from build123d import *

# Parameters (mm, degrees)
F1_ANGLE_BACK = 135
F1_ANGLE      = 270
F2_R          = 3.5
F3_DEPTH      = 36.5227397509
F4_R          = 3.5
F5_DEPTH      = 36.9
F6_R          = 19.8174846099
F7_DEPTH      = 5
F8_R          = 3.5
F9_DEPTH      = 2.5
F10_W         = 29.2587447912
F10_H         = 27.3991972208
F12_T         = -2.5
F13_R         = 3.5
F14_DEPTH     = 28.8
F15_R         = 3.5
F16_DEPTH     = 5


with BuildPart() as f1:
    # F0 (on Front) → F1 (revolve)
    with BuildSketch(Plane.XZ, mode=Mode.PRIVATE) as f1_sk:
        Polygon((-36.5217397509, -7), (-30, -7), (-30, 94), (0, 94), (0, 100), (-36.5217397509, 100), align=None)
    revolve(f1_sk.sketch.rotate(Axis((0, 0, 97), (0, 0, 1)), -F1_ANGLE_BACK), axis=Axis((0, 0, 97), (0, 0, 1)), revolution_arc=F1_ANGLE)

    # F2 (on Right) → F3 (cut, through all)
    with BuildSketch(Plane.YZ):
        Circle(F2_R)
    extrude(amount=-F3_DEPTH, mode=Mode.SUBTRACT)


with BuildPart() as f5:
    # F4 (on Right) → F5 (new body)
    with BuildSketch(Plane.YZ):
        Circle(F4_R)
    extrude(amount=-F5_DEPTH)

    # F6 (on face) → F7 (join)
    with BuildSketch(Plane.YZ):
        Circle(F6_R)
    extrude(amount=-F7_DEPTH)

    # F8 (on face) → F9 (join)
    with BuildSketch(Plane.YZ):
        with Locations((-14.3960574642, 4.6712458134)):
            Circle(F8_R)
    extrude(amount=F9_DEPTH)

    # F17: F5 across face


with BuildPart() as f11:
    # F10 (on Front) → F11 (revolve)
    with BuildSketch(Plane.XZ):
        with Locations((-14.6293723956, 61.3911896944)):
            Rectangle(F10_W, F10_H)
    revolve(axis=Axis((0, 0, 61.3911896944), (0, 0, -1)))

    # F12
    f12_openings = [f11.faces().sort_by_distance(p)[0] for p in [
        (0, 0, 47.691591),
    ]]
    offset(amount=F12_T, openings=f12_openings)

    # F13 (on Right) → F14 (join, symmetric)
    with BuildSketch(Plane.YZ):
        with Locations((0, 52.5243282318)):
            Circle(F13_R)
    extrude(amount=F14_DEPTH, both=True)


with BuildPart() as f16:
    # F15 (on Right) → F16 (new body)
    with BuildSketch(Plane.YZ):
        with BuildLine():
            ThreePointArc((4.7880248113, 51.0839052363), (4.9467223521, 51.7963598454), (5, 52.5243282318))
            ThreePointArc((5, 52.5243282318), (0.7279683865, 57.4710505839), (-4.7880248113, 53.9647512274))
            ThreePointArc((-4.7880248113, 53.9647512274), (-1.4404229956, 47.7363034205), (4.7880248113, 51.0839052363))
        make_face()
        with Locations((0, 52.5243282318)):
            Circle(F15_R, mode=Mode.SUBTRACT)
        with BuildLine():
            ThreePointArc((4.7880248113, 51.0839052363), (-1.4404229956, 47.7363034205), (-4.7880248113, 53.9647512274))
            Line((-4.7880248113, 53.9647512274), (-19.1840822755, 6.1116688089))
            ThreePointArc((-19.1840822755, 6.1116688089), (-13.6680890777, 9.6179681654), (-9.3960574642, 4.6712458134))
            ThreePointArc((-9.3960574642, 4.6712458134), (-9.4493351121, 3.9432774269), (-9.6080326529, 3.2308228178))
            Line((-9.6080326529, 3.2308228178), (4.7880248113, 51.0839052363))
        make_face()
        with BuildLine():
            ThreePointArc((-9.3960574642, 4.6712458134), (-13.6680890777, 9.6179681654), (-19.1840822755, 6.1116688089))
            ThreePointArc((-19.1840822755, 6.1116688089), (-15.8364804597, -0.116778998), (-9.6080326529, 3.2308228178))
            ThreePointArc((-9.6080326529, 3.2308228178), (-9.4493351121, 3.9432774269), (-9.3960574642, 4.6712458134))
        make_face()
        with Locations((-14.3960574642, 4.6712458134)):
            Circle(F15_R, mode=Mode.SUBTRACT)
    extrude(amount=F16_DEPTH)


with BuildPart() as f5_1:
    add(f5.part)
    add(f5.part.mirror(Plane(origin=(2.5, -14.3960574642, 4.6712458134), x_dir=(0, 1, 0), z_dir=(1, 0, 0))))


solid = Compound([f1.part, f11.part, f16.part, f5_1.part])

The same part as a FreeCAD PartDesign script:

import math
import FreeCAD as App
import Part
import Sketcher
Q = App.Units.Quantity


def faces_at(feature, points):
    """Names of the faces that lie closest to the given points."""
    faces = feature.Shape.Faces
    near = lambda p: min(range(len(faces)), key=lambda i: faces[i].distToShape(Part.Vertex(*p))[0])
    return sorted({f"Face{near(p) + 1}" for p in points})


def add_polygon(sketch, points):
    """Adds a closed chain of lines whose ends are joined by coincident constraints."""
    first, n = sketch.GeometryCount, len(points)
    for a, b in zip(points, points[1:] + points[:1]):
        sketch.addGeometry(Part.LineSegment(App.Vector(*a, 0), App.Vector(*b, 0)), False)
    for i in range(n):
        sketch.addConstraint(Sketcher.Constraint("Coincident", first + i, 2, first + (i + 1) % n, 1))

doc = App.newDocument("Part")
params = doc.addObject("Spreadsheet::Sheet", "Params")
for row, (alias, value) in enumerate([
    ("sketch1_width", "30 mm"),
    ("sketch1_height", "101 mm"),
    ("sketch1_height2", "6 mm"),
    ("revolution_angle", "270 deg"),
    ("sketch2_diameter", "7 mm"),
    ("sketch3_diameter", "7 mm"),
    ("pad1_length", "36.9 mm"),
    ("pad2_length", "5 mm"),
    ("sketch5_diameter", "7 mm"),
    ("pad3_length", "2.5 mm"),
    ("revolution2_angle", "360 deg"),
    ("thickness_wall", "2.5 mm"),
    ("sketch7_diameter", "7 mm"),
    ("pad4_length", "57.6 mm"),
    ("sketch8_diameter", "7 mm"),
    ("sketch8_radius", "5 mm"),
    ("pad5_length", "5 mm"),
], start=1):
    params.set(f"A{row}", alias)
    params.set(f"B{row}", "=" + value)
    params.setAlias(f"B{row}", alias)

body = doc.addObject("PartDesign::Body", "Body")

sketch1 = body.newObject("Sketcher::SketchObject", "Sketch")
sketch1.Placement = App.Placement(App.Vector(0, 0, 0), App.Rotation(App.Vector(-0.707106781, -0.707106781, 0), App.Vector(0, 0, 0.999999999), App.Vector(-0.707106781, 0.707106781, 0), "ZXY"))
add_polygon(sketch1, [(-37, -7), (-30, -7), (-30, 94), (0, 94), (0, 100), (-37, 100)])
sketch1.addConstraint(Sketcher.Constraint("Horizontal", 0))
sketch1.addConstraint(Sketcher.Constraint("Vertical", 1))
sketch1.addConstraint(Sketcher.Constraint("Horizontal", 2))
sketch1.addConstraint(Sketcher.Constraint("Vertical", 3))
sketch1.addConstraint(Sketcher.Constraint("Horizontal", 4))
sketch1.addConstraint(Sketcher.Constraint("Vertical", 5))
sketch1.addConstraint(Sketcher.Constraint("PointOnObject", 2, 2, -2))
sketch1.addConstraint(Sketcher.Constraint("DistanceX", 2, 1, 2, 2, Q("30 mm")))
sketch1.addConstraint(Sketcher.Constraint("DistanceY", 1, 1, 1, 2, Q("101 mm")))
sketch1.addConstraint(Sketcher.Constraint("DistanceY", 3, 1, 3, 2, Q("6 mm")))
sketch1.addConstraint(Sketcher.Constraint("DistanceY", 0, 2, -1, 1, Q("7 mm")))
sketch1.addConstraint(Sketcher.Constraint("DistanceX", 0, 1, 0, 2, Q("6.52174 mm")))
sketch1.setExpression("Constraints[13]", "Params.sketch1_width")
sketch1.setExpression("Constraints[14]", "Params.sketch1_height")
sketch1.setExpression("Constraints[15]", "Params.sketch1_height2")
revolution = body.newObject("PartDesign::Revolution", "Revolution")
revolution.Profile = sketch1
revolution.ReferenceAxis = (sketch1, ["V_Axis"])
revolution.setExpression("Angle", "Params.revolution_angle")

sketch2 = body.newObject("Sketcher::SketchObject", "Sketch001")
sketch2.AttachmentSupport = (doc.getObject("YZ_Plane"), [""])
sketch2.MapMode = "FlatFace"
sketch2.addGeometry(Part.Circle(App.Vector(0, 0, 0), App.Vector(0, 0, 1), 3.5), False)
sketch2.addConstraint(Sketcher.Constraint("Coincident", 0, 3, -1, 1))
sketch2.addConstraint(Sketcher.Constraint("Diameter", 0, Q("7 mm")))
sketch2.setExpression("Constraints[1]", "Params.sketch2_diameter")
pocket1 = body.newObject("PartDesign::Pocket", "Pocket")
pocket1.Profile = sketch2
pocket1.Type = "ThroughAll"
body2 = doc.addObject("PartDesign::Body", "Body001")

sketch3 = body2.newObject("Sketcher::SketchObject", "Sketch002")
sketch3.AttachmentSupport = (doc.getObject("YZ_Plane001"), [""])
sketch3.MapMode = "FlatFace"
sketch3.addGeometry(Part.Circle(App.Vector(0, 0, 0), App.Vector(0, 0, 1), 3.5), False)
sketch3.addConstraint(Sketcher.Constraint("Coincident", 0, 3, -1, 1))
sketch3.addConstraint(Sketcher.Constraint("Diameter", 0, Q("7 mm")))
sketch3.setExpression("Constraints[1]", "Params.sketch3_diameter")
pad1 = body2.newObject("PartDesign::Pad", "Pad")
pad1.Profile = sketch3
pad1.setExpression("Length", "Params.pad1_length")
pad1.Reversed = True

sketch4 = body2.newObject("Sketcher::SketchObject", "Sketch003")
sketch4.AttachmentSupport = (doc.getObject("YZ_Plane001"), [""])
sketch4.MapMode = "FlatFace"
sketch4.addGeometry(Part.Circle(App.Vector(0, 0, 0), App.Vector(0, 0, 1), 20), False)
sketch4.addConstraint(Sketcher.Constraint("Coincident", 0, 3, -1, 1))
sketch4.addConstraint(Sketcher.Constraint("Diameter", 0, Q("39.634969 mm")))
pad2 = body2.newObject("PartDesign::Pad", "Pad001")
pad2.Profile = sketch4
pad2.setExpression("Length", "Params.pad2_length")
pad2.Reversed = True

sketch5 = body2.newObject("Sketcher::SketchObject", "Sketch004")
sketch5.AttachmentSupport = (doc.getObject("YZ_Plane001"), [""])
sketch5.MapMode = "FlatFace"
sketch5.addGeometry(Part.Circle(App.Vector(-14.4, 4.7, 0), App.Vector(0, 0, 1), 3.5), False)
sketch5.addConstraint(Sketcher.Constraint("Diameter", 0, Q("7 mm")))
sketch5.addConstraint(Sketcher.Constraint("DistanceX", 0, 3, -1, 1, Q("14.396057 mm")))
sketch5.addConstraint(Sketcher.Constraint("DistanceY", -1, 1, 0, 3, Q("4.671246 mm")))
sketch5.setExpression("Constraints[0]", "Params.sketch5_diameter")
pad3 = body2.newObject("PartDesign::Pad", "Pad002")
pad3.Profile = sketch5
pad3.setExpression("Length", "Params.pad3_length")
body3 = doc.addObject("PartDesign::Body", "Body002")

sketch6 = body3.newObject("Sketcher::SketchObject", "Sketch005")
sketch6.AttachmentSupport = (doc.getObject("XZ_Plane002"), [""])
sketch6.MapMode = "FlatFace"
add_polygon(sketch6, [(-29, 75), (-29, 48), (0, 48), (0, 75)])
sketch6.addConstraint(Sketcher.Constraint("Vertical", 0))
sketch6.addConstraint(Sketcher.Constraint("Horizontal", 1))
sketch6.addConstraint(Sketcher.Constraint("Vertical", 2))
sketch6.addConstraint(Sketcher.Constraint("Horizontal", 3))
sketch6.addConstraint(Sketcher.Constraint("PointOnObject", 1, 2, -2))
sketch6.addConstraint(Sketcher.Constraint("DistanceX", 1, 1, 1, 2, Q("29.258745 mm")))
sketch6.addConstraint(Sketcher.Constraint("DistanceY", 0, 2, 0, 1, Q("27.399197 mm")))
sketch6.addConstraint(Sketcher.Constraint("DistanceY", -1, 1, 0, 2, Q("47.691591 mm")))
revolution2 = body3.newObject("PartDesign::Revolution", "Revolution001")
revolution2.Profile = sketch6
revolution2.ReferenceAxis = (sketch6, ["V_Axis"])
revolution2.setExpression("Angle", "Params.revolution2_angle")
doc.recompute()

thickness = body3.newObject("PartDesign::Thickness", "Thickness")
thickness.Base = (revolution2, faces_at(revolution2, [(0, 0, 47.692)]))
thickness.setExpression("Value", "Params.thickness_wall")
thickness.Reversed = True
thickness.Join = "Arc"

sketch7 = body3.newObject("Sketcher::SketchObject", "Sketch006")
sketch7.AttachmentSupport = (doc.getObject("YZ_Plane002"), [""])
sketch7.MapMode = "FlatFace"
sketch7.addGeometry(Part.Circle(App.Vector(0, 52.5, 0), App.Vector(0, 0, 1), 3.5), False)
sketch7.addConstraint(Sketcher.Constraint("PointOnObject", 0, 3, -2))
sketch7.addConstraint(Sketcher.Constraint("Diameter", 0, Q("7 mm")))
sketch7.addConstraint(Sketcher.Constraint("DistanceY", -1, 1, 0, 3, Q("52.524328 mm")))
sketch7.setExpression("Constraints[1]", "Params.sketch7_diameter")
pad4 = body3.newObject("PartDesign::Pad", "Pad003")
pad4.Profile = sketch7
pad4.setExpression("Length", "Params.pad4_length")
pad4.Midplane = True
body4 = doc.addObject("PartDesign::Body", "Body003")

sketch8 = body4.newObject("Sketcher::SketchObject", "Sketch007")
sketch8.AttachmentSupport = (doc.getObject("YZ_Plane003"), [""])
sketch8.MapMode = "FlatFace"
sketch8.addGeometry(Part.ArcOfCircle(Part.Circle(App.Vector(0, 52.5, 0), App.Vector(0, 0, 1), 5), math.radians(-16.74), math.radians(0)), False)
sketch8.addGeometry(Part.ArcOfCircle(Part.Circle(App.Vector(0, 52.5, 0), App.Vector(0, 0, 1), 5), math.radians(0), math.radians(163)), False)
sketch8.addGeometry(Part.LineSegment(App.Vector(-4.8, 54, 0), App.Vector(-19.2, 6.1, 0)), False)
sketch8.addGeometry(Part.ArcOfCircle(Part.Circle(App.Vector(-14.4, 4.7, 0), App.Vector(0, 0, 1), 5), math.radians(163), math.radians(343)), False)
sketch8.addGeometry(Part.LineSegment(App.Vector(-9.6, 3.2, 0), App.Vector(4.8, 51.1, 0)), False)
sketch8.addGeometry(Part.Circle(App.Vector(-14.4, 4.7, 0), App.Vector(0, 0, 1), 3.5), False)
sketch8.addGeometry(Part.Circle(App.Vector(0, 52.5, 0), App.Vector(0, 0, 1), 3.5), False)
sketch8.addConstraint(Sketcher.Constraint("Tangent", 0, 2, 1, 1))
sketch8.addConstraint(Sketcher.Constraint("Tangent", 1, 2, 2, 1))
sketch8.addConstraint(Sketcher.Constraint("Tangent", 2, 2, 3, 1))
sketch8.addConstraint(Sketcher.Constraint("Tangent", 3, 2, 4, 1))
sketch8.addConstraint(Sketcher.Constraint("Tangent", 4, 2, 0, 1))
sketch8.addConstraint(Sketcher.Constraint("Coincident", 5, 3, 3, 3))
sketch8.addConstraint(Sketcher.Constraint("Coincident", 6, 3, 0, 3))
sketch8.addConstraint(Sketcher.Constraint("Equal", 0, 1))
sketch8.addConstraint(Sketcher.Constraint("Equal", 1, 3))
sketch8.addConstraint(Sketcher.Constraint("Equal", 5, 6))
sketch8.addConstraint(Sketcher.Constraint("PointOnObject", 0, 3, -2))
sketch8.addConstraint(Sketcher.Constraint("Horizontal", 6, 3, 0, 2))
sketch8.addConstraint(Sketcher.Constraint("Diameter", 5, Q("7 mm")))
sketch8.addConstraint(Sketcher.Constraint("Radius", 0, Q("5 mm")))
sketch8.addConstraint(Sketcher.Constraint("Distance", 2, Q("49.971632 mm")))
sketch8.addConstraint(Sketcher.Constraint("DistanceY", -1, 1, 0, 3, Q("52.524328 mm")))
sketch8.addConstraint(Sketcher.Constraint("DistanceY", -1, 1, 1, 2, Q("53.964751 mm")))
sketch8.setExpression("Constraints[12]", "Params.sketch8_diameter")
sketch8.setExpression("Constraints[13]", "Params.sketch8_radius")
pad5 = body4.newObject("PartDesign::Pad", "Pad004")
pad5.Profile = sketch8
pad5.setExpression("Length", "Params.pad5_length")
body5 = doc.addObject("PartDesign::Body", "Body004")
doc.recompute()

body5.BaseFeature = body2
doc.recompute()

mirroring = doc.addObject("Part::Mirroring", "Mirroring")
mirroring.Source = body2
mirroring.Base = App.Vector(2.5, -14.396057, 4.671246)
mirroring.Normal = App.Vector(1, 0, 0)
body6 = doc.addObject("PartDesign::Body", "Body005")
body6.BaseFeature = mirroring
boolean = body5.newObject("PartDesign::Boolean", "Boolean")
boolean.Type = "Fuse"
boolean.addObjects([body6])
doc.recompute()
mirroring.Visibility = False

doc.recompute()
